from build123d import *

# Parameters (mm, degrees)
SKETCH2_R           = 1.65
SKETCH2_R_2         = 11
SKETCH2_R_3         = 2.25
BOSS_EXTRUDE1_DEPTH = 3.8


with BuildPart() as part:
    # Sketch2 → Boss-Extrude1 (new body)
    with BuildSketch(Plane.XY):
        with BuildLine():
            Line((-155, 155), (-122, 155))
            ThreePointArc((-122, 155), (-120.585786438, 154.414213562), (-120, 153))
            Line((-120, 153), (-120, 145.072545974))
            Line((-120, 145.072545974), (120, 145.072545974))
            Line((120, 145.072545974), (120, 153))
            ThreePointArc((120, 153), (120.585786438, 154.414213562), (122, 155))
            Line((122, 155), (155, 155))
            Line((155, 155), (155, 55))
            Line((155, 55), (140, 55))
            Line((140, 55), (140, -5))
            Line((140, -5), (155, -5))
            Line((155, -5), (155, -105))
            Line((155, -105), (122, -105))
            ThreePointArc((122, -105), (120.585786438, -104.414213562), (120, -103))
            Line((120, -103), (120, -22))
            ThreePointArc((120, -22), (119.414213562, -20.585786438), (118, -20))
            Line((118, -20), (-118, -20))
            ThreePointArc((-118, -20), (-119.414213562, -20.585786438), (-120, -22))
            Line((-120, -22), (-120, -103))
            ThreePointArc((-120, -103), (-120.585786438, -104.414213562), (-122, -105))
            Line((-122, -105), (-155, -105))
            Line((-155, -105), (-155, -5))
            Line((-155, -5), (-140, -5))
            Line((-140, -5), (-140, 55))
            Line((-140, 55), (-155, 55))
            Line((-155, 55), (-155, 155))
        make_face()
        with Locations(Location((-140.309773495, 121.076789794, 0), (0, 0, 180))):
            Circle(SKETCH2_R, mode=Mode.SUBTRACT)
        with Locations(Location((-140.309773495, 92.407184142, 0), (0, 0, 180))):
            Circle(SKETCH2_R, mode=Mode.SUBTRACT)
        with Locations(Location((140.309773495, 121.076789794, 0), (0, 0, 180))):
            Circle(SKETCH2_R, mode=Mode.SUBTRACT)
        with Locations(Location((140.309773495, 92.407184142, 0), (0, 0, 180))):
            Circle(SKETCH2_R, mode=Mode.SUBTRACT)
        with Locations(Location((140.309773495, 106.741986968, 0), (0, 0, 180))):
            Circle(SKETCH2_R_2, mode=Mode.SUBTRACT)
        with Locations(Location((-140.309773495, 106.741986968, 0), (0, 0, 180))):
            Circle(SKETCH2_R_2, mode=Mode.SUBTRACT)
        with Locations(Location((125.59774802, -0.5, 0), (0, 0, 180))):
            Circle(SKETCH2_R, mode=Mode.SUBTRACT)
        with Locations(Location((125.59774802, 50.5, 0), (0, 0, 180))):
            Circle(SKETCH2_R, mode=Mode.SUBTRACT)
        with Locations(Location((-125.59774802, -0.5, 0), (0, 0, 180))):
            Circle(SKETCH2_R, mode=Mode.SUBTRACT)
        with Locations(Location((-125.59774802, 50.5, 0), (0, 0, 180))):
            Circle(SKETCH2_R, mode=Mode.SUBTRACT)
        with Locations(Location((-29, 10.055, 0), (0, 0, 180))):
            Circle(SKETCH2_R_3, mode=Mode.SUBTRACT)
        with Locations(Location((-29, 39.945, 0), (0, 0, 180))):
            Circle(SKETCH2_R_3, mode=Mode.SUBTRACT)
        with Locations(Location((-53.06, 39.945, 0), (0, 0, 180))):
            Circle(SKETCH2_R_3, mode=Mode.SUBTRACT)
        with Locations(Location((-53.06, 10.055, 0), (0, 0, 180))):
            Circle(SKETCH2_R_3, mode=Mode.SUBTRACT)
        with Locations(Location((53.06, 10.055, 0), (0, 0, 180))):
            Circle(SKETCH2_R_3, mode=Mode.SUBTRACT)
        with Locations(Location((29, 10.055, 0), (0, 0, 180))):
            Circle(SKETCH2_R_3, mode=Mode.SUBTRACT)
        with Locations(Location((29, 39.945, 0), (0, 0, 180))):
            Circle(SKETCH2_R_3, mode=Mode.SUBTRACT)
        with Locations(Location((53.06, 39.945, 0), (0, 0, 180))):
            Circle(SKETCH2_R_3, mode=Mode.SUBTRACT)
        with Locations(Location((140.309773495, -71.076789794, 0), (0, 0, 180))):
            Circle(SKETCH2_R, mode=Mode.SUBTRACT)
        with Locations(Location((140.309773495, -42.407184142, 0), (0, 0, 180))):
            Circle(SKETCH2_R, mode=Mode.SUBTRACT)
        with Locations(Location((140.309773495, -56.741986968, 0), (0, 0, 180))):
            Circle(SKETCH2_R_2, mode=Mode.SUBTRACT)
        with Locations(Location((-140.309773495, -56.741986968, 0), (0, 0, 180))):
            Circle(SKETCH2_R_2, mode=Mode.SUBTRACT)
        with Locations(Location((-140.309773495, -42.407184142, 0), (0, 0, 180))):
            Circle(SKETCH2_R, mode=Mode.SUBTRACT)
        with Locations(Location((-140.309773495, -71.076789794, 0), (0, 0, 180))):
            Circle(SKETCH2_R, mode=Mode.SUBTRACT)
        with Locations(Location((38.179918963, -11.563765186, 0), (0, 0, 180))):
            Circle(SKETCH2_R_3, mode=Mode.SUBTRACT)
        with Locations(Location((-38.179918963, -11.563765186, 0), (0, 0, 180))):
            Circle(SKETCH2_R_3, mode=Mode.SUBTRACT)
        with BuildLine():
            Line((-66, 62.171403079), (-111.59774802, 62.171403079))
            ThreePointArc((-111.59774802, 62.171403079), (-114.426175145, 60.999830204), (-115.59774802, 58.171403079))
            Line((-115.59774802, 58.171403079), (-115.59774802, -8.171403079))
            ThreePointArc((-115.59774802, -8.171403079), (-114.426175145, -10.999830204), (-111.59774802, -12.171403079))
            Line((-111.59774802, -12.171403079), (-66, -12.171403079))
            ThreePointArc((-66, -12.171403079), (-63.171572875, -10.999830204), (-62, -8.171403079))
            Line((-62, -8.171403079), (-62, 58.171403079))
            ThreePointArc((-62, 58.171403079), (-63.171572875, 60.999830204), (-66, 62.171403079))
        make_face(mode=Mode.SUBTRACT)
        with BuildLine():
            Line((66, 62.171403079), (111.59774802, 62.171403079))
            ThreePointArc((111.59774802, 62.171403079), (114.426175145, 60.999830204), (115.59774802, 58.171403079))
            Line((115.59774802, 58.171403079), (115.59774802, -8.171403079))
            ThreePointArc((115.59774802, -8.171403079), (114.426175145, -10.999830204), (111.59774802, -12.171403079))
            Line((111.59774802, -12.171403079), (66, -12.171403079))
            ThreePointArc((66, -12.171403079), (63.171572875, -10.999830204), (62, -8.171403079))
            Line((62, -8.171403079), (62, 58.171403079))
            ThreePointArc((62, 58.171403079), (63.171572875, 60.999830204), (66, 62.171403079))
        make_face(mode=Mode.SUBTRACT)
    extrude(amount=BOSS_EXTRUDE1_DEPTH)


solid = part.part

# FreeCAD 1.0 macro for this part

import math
import FreeCAD as App
import Part
import Sketcher

doc = App.newDocument("Part")
body = doc.addObject("PartDesign::Body", "Body")

sketch1 = doc.addObject("Sketcher::SketchObject", "Sketch")
body.addObject(sketch1)
sketch1.AttachmentSupport = (doc.XY_Plane, [""])
sketch1.MapMode = "FlatFace"
sketch1.addGeometry([
    Part.LineSegment(App.Vector(-122, 155, 0), App.Vector(-155, 155, 0)),
    Part.LineSegment(App.Vector(-155, 155, 0), App.Vector(-155, 55, 0)),
    Part.LineSegment(App.Vector(-155, 55, 0), App.Vector(-140, 55, 0)),
    Part.LineSegment(App.Vector(-140, 55, 0), App.Vector(-140, -5, 0)),
    Part.LineSegment(App.Vector(-140, -5, 0), App.Vector(-155, -5, 0)),
    Part.LineSegment(App.Vector(-155, -5, 0), App.Vector(-155, -105, 0)),
    Part.LineSegment(App.Vector(-155, -105, 0), App.Vector(-122, -105, 0)),
    Part.ArcOfCircle(Part.Circle(App.Vector(-122, -103, 0), App.Vector(0, 0, 1), 2), math.radians(-90), math.radians(0)),
    Part.LineSegment(App.Vector(-120, -103, 0), App.Vector(-120, -22, 0)),
    Part.ArcOfCircle(Part.Circle(App.Vector(-118, -22, 0), App.Vector(0, 0, 1), 2), math.radians(90), math.radians(180)),
    Part.LineSegment(App.Vector(-118, -20, 0), App.Vector(118, -20, 0)),
    Part.ArcOfCircle(Part.Circle(App.Vector(118, -22, 0), App.Vector(0, 0, 1), 2), math.radians(0), math.radians(90)),
    Part.LineSegment(App.Vector(120, -22, 0), App.Vector(120, -103, 0)),
    Part.ArcOfCircle(Part.Circle(App.Vector(122, -103, 0), App.Vector(0, 0, 1), 2), math.radians(-180), math.radians(-90)),
    Part.LineSegment(App.Vector(122, -105, 0), App.Vector(155, -105, 0)),
    Part.LineSegment(App.Vector(155, -105, 0), App.Vector(155, -5, 0)),
    Part.LineSegment(App.Vector(155, -5, 0), App.Vector(140, -5, 0)),
    Part.LineSegment(App.Vector(140, -5, 0), App.Vector(140, 55, 0)),
    Part.LineSegment(App.Vector(140, 55, 0), App.Vector(155, 55, 0)),
    Part.LineSegment(App.Vector(155, 55, 0), App.Vector(155, 155, 0)),
    Part.LineSegment(App.Vector(155, 155, 0), App.Vector(122, 155, 0)),
    Part.ArcOfCircle(Part.Circle(App.Vector(122, 153, 0), App.Vector(0, 0, 1), 2), math.radians(90), math.radians(180)),
    Part.LineSegment(App.Vector(120, 153, 0), App.Vector(120, 145.1, 0)),
    Part.LineSegment(App.Vector(120, 145.1, 0), App.Vector(-120, 145.1, 0)),
    Part.LineSegment(App.Vector(-120, 145.1, 0), App.Vector(-120, 153, 0)),
    Part.ArcOfCircle(Part.Circle(App.Vector(-122, 153, 0), App.Vector(0, 0, 1), 2), math.radians(0), math.radians(90)),
    Part.Circle(App.Vector(140.3, -71.1, 0), App.Vector(0, 0, 1), 1.6),
    Part.Circle(App.Vector(140.3, -56.7, 0), App.Vector(0, 0, 1), 11),
    Part.Circle(App.Vector(140.3, -42.4, 0), App.Vector(0, 0, 1), 1.6),
    Part.Circle(App.Vector(125.6, -0.5, 0), App.Vector(0, 0, 1), 1.6),
    Part.Circle(App.Vector(38.2, -11.6, 0), App.Vector(0, 0, 1), 2.2),
    Part.Circle(App.Vector(53.1, 10.1, 0), App.Vector(0, 0, 1), 2.2),
    Part.Circle(App.Vector(29, 10.1, 0), App.Vector(0, 0, 1), 2.2),
    Part.Circle(App.Vector(-140.3, -71.1, 0), App.Vector(0, 0, 1), 1.6),
    Part.Circle(App.Vector(-140.3, -56.7, 0), App.Vector(0, 0, 1), 11),
    Part.Circle(App.Vector(-140.3, -42.4, 0), App.Vector(0, 0, 1), 1.6),
    Part.Circle(App.Vector(-38.2, -11.6, 0), App.Vector(0, 0, 1), 2.2),
    Part.Circle(App.Vector(-29, 10.1, 0), App.Vector(0, 0, 1), 2.2),
    Part.Circle(App.Vector(-53.1, 10.1, 0), App.Vector(0, 0, 1), 2.2),
    Part.Circle(App.Vector(-125.6, -0.5, 0), App.Vector(0, 0, 1), 1.6),
    Part.LineSegment(App.Vector(66, 62.2, 0), App.Vector(111.6, 62.2, 0)),
    Part.ArcOfCircle(Part.Circle(App.Vector(111.6, 58.2, 0), App.Vector(0, 0, 1), 4), math.radians(0), math.radians(90)),
    Part.LineSegment(App.Vector(115.6, 58.2, 0), App.Vector(115.6, -8.2, 0)),
    Part.ArcOfCircle(Part.Circle(App.Vector(111.6, -8.2, 0), App.Vector(0, 0, 1), 4), math.radians(-90), math.radians(0)),
    Part.LineSegment(App.Vector(111.6, -12.2, 0), App.Vector(66, -12.2, 0)),
    Part.ArcOfCircle(Part.Circle(App.Vector(66, -8.2, 0), App.Vector(0, 0, 1), 4), math.radians(180), math.radians(270)),
    Part.LineSegment(App.Vector(62, -8.2, 0), App.Vector(62, 58.2, 0)),
    Part.ArcOfCircle(Part.Circle(App.Vector(66, 58.2, 0), App.Vector(0, 0, 1), 4), math.radians(90), math.radians(180)),
    Part.Circle(App.Vector(125.6, 50.5, 0), App.Vector(0, 0, 1), 1.6),
    Part.Circle(App.Vector(53.1, 39.9, 0), App.Vector(0, 0, 1), 2.2),
    Part.Circle(App.Vector(29, 39.9, 0), App.Vector(0, 0, 1), 2.2),
    Part.Circle(App.Vector(140.3, 92.4, 0), App.Vector(0, 0, 1), 1.6),
    Part.Circle(App.Vector(140.3, 106.7, 0), App.Vector(0, 0, 1), 11),
    Part.Circle(App.Vector(140.3, 121.1, 0), App.Vector(0, 0, 1), 1.6),
    Part.Circle(App.Vector(-29, 39.9, 0), App.Vector(0, 0, 1), 2.2),
    Part.Circle(App.Vector(-53.1, 39.9, 0), App.Vector(0, 0, 1), 2.2),
    Part.ArcOfCircle(Part.Circle(App.Vector(-66, 58.2, 0), App.Vector(0, 0, 1), 4), math.radians(0), math.radians(90)),
    Part.LineSegment(App.Vector(-62, 58.2, 0), App.Vector(-62, -8.2, 0)),
    Part.ArcOfCircle(Part.Circle(App.Vector(-66, -8.2, 0), App.Vector(0, 0, 1), 4), math.radians(-90), math.radians(0)),
    Part.LineSegment(App.Vector(-66, -12.2, 0), App.Vector(-111.6, -12.2, 0)),
    Part.ArcOfCircle(Part.Circle(App.Vector(-111.6, -8.2, 0), App.Vector(0, 0, 1), 4), math.radians(180), math.radians(270)),
    Part.LineSegment(App.Vector(-115.6, -8.2, 0), App.Vector(-115.6, 58.2, 0)),
    Part.ArcOfCircle(Part.Circle(App.Vector(-111.6, 58.2, 0), App.Vector(0, 0, 1), 4), math.radians(90), math.radians(180)),
    Part.LineSegment(App.Vector(-111.6, 62.2, 0), App.Vector(-66, 62.2, 0)),
    Part.Circle(App.Vector(-125.6, 50.5, 0), App.Vector(0, 0, 1), 1.6),
    Part.Circle(App.Vector(-140.3, 92.4, 0), App.Vector(0, 0, 1), 1.6),
    Part.Circle(App.Vector(-140.3, 106.7, 0), App.Vector(0, 0, 1), 11),
    Part.Circle(App.Vector(-140.3, 121.1, 0), App.Vector(0, 0, 1), 1.6),
], False)
sketch1.addConstraint([
    Sketcher.Constraint("Coincident", 0, 2, 1, 1),
    Sketcher.Constraint("Coincident", 1, 2, 2, 1),
    Sketcher.Constraint("Coincident", 2, 2, 3, 1),
    Sketcher.Constraint("Coincident", 3, 2, 4, 1),
    Sketcher.Constraint("Coincident", 4, 2, 5, 1),
    Sketcher.Constraint("Coincident", 5, 2, 6, 1),
    Sketcher.Constraint("Tangent", 6, 2, 7, 1),
    Sketcher.Constraint("Tangent", 7, 2, 8, 1),
    Sketcher.Constraint("Tangent", 8, 2, 9, 2),
    Sketcher.Constraint("Tangent", 9, 1, 10, 1),
    Sketcher.Constraint("Tangent", 10, 2, 11, 2),
    Sketcher.Constraint("Tangent", 11, 1, 12, 1),
    Sketcher.Constraint("Tangent", 12, 2, 13, 1),
    Sketcher.Constraint("Tangent", 13, 2, 14, 1),
    Sketcher.Constraint("Coincident", 14, 2, 15, 1),
    Sketcher.Constraint("Coincident", 15, 2, 16, 1),
    Sketcher.Constraint("Coincident", 16, 2, 17, 1),
    Sketcher.Constraint("Coincident", 17, 2, 18, 1),
    Sketcher.Constraint("Coincident", 18, 2, 19, 1),
    Sketcher.Constraint("Coincident", 19, 2, 20, 1),
    Sketcher.Constraint("Tangent", 20, 2, 21, 1),
    Sketcher.Constraint("Tangent", 21, 2, 22, 1),
    Sketcher.Constraint("Coincident", 22, 2, 23, 1),
    Sketcher.Constraint("Coincident", 23, 2, 24, 1),
    Sketcher.Constraint("Tangent", 24, 2, 25, 1),
    Sketcher.Constraint("Tangent", 25, 2, 0, 1),
    Sketcher.Constraint("Tangent", 40, 2, 41, 2),
    Sketcher.Constraint("Tangent", 41, 1, 42, 1),
    Sketcher.Constraint("Tangent", 42, 2, 43, 2),
    Sketcher.Constraint("Tangent", 43, 1, 44, 1),
    Sketcher.Constraint("Tangent", 44, 2, 45, 2),
    Sketcher.Constraint("Tangent", 45, 1, 46, 1),
    Sketcher.Constraint("Tangent", 46, 2, 47, 2),
    Sketcher.Constraint("Tangent", 47, 1, 40, 1),
    Sketcher.Constraint("Tangent", 56, 1, 57, 1),
    Sketcher.Constraint("Tangent", 57, 2, 58, 2),
    Sketcher.Constraint("Tangent", 58, 1, 59, 1),
    Sketcher.Constraint("Tangent", 59, 2, 60, 2),
    Sketcher.Constraint("Tangent", 60, 1, 61, 1),
    Sketcher.Constraint("Tangent", 61, 2, 62, 2),
    Sketcher.Constraint("Tangent", 62, 1, 63, 1),
    Sketcher.Constraint("Tangent", 63, 2, 56, 2),
    Sketcher.Constraint("Horizontal", 0),
    Sketcher.Constraint("Vertical", 1),
    Sketcher.Constraint("Horizontal", 2),
    Sketcher.Constraint("Vertical", 3),
    Sketcher.Constraint("Horizontal", 4),
    Sketcher.Constraint("Vertical", 5),
    Sketcher.Constraint("Horizontal", 6),
    Sketcher.Constraint("Vertical", 8),
    Sketcher.Constraint("Horizontal", 10),
    Sketcher.Constraint("Vertical", 12),
    Sketcher.Constraint("Horizontal", 14),
    Sketcher.Constraint("Vertical", 15),
    Sketcher.Constraint("Horizontal", 16),
    Sketcher.Constraint("Vertical", 17),
    Sketcher.Constraint("Horizontal", 18),
    Sketcher.Constraint("Vertical", 19),
    Sketcher.Constraint("Horizontal", 20),
    Sketcher.Constraint("Vertical", 22),
    Sketcher.Constraint("Horizontal", 23),
    Sketcher.Constraint("Vertical", 24),
    Sketcher.Constraint("Horizontal", 40),
    Sketcher.Constraint("Vertical", 42),
    Sketcher.Constraint("Horizontal", 44),
    Sketcher.Constraint("Vertical", 46),
    Sketcher.Constraint("Vertical", 57),
    Sketcher.Constraint("Horizontal", 59),
    Sketcher.Constraint("Vertical", 61),
    Sketcher.Constraint("Horizontal", 63),
    Sketcher.Constraint("Equal", 7, 9),
    Sketcher.Constraint("Equal", 9, 11),
    Sketcher.Constraint("Equal", 11, 13),
    Sketcher.Constraint("Equal", 13, 21),
    Sketcher.Constraint("Equal", 21, 25),
    Sketcher.Constraint("Equal", 26, 28),
    Sketcher.Constraint("Equal", 28, 29),
    Sketcher.Constraint("Equal", 30, 31),
    Sketcher.Constraint("Equal", 31, 32),
    Sketcher.Constraint("Equal", 29, 33),
    Sketcher.Constraint("Equal", 27, 34),
    Sketcher.Constraint("Equal", 33, 35),
    Sketcher.Constraint("Equal", 32, 36),
    Sketcher.Constraint("Equal", 36, 37),
    Sketcher.Constraint("Equal", 37, 38),
    Sketcher.Constraint("Equal", 35, 39),
    Sketcher.Constraint("Equal", 41, 43),
    Sketcher.Constraint("Equal", 43, 45),
    Sketcher.Constraint("Equal", 45, 47),
    Sketcher.Constraint("Equal", 39, 48),
    Sketcher.Constraint("Equal", 38, 49),
    Sketcher.Constraint("Equal", 49, 50),
    Sketcher.Constraint("Equal", 48, 51),
    Sketcher.Constraint("Equal", 34, 52),
    Sketcher.Constraint("Equal", 51, 53),
    Sketcher.Constraint("Equal", 50, 54),
    Sketcher.Constraint("Equal", 54, 55),
    Sketcher.Constraint("Equal", 47, 56),
    Sketcher.Constraint("Equal", 56, 58),
    Sketcher.Constraint("Equal", 58, 60),
    Sketcher.Constraint("Equal", 60, 62),
    Sketcher.Constraint("Equal", 53, 64),
    Sketcher.Constraint("Equal", 64, 65),
    Sketcher.Constraint("Equal", 52, 66),
    Sketcher.Constraint("Equal", 65, 67),
    Sketcher.Constraint("Symmetric", 7, 3, 13, 3, -2),
    Sketcher.Constraint("Symmetric", 21, 3, 25, 3, -2),
    Sketcher.Constraint("Symmetric", 26, 3, 33, 3, -2),
    Sketcher.Constraint("Symmetric", 27, 3, 34, 3, -2),
    Sketcher.Constraint("Symmetric", 28, 3, 35, 3, -2),
    Sketcher.Constraint("Symmetric", 30, 3, 36, 3, -2),
    Sketcher.Constraint("Symmetric", 32, 3, 37, 3, -2),
    Sketcher.Constraint("Symmetric", 31, 3, 38, 3, -2),
    Sketcher.Constraint("Symmetric", 29, 3, 39, 3, -2),
    Sketcher.Constraint("Symmetric", 50, 3, 54, 3, -2),
    Sketcher.Constraint("Symmetric", 49, 3, 55, 3, -2),
    Sketcher.Constraint("Symmetric", 47, 3, 56, 3, -2),
    Sketcher.Constraint("Symmetric", 43, 3, 60, 3, -2),
    Sketcher.Constraint("Symmetric", 48, 3, 64, 3, -2),
    Sketcher.Constraint("Symmetric", 51, 3, 65, 3, -2),
    Sketcher.Constraint("Symmetric", 52, 3, 66, 3, -2),
    Sketcher.Constraint("Symmetric", 53, 3, 67, 3, -2),
    Sketcher.Constraint("Symmetric", 4, 2, 15, 2, -2),
    Sketcher.Constraint("Symmetric", 2, 2, 17, 2, -2),
    Sketcher.Constraint("Horizontal", 31, 3, 32, 3),
    Sketcher.Constraint("Horizontal", 49, 3, 50, 3),
    Sketcher.Constraint("Vertical", 13, 3, 21, 3),
    Sketcher.Constraint("Vertical", 26, 3, 27, 3),
    Sketcher.Constraint("Vertical", 27, 3, 28, 3),
    Sketcher.Constraint("Vertical", 29, 3, 48, 3),
    Sketcher.Constraint("Vertical", 31, 3, 49, 3),
    Sketcher.Constraint("Vertical", 32, 3, 50, 3),
    Sketcher.Constraint("Vertical", 28, 3, 51, 3),
    Sketcher.Constraint("Vertical", 51, 3, 52, 3),
    Sketcher.Constraint("Vertical", 52, 3, 53, 3),
    Sketcher.Constraint("Vertical", 1, 2, 4, 2),
    Sketcher.Constraint("Vertical", 15, 2, 18, 2),
    Sketcher.Constraint("Equal", 1, 5),
    Sketcher.Constraint("Diameter", 27, 22.0),
    Sketcher.Constraint("Radius", 7, 2.0),
    Sketcher.Constraint("Radius", 41, 4.0),
    Sketcher.Constraint("Diameter", 26, 3.3),
    Sketcher.Constraint("Diameter", 30, 4.5),
    Sketcher.Constraint("DistanceX", 0, 2, 0, 1, 33.0),
    Sketcher.Constraint("DistanceX", 2, 1, 2, 2, 15.0),
    Sketcher.Constraint("DistanceX", 10, 1, 10, 2, 236.0),
    Sketcher.Constraint("DistanceY", 1, 2, 1, 1, 100.0),
    Sketcher.Constraint("DistanceY", 3, 2, 3, 1, 60.0),
    Sketcher.Constraint("DistanceY", 8, 1, 8, 2, 81.0),
    Sketcher.Constraint("DistanceY", 7, 3, -1, 1, 103.0),
    Sketcher.Constraint("DistanceX", -1, 1, 32, 3, 29.0),
    Sketcher.Constraint("DistanceX", -1, 1, 45, 3, 66.0),
    Sketcher.Constraint("DistanceY", 29, 3, -1, 1, 0.5),
    Sketcher.Constraint("DistanceY", -1, 1, 48, 3, 50.5),
    Sketcher.Constraint("DistanceX", -1, 1, 31, 3, 53.06),
    Sketcher.Constraint("DistanceY", -1, 1, 31, 3, 10.055),
    Sketcher.Constraint("DistanceY", -1, 1, 49, 3, 39.945),
    Sketcher.Constraint("DistanceX", 40, 1, 40, 2, 45.597748),
    Sketcher.Constraint("DistanceY", 22, 2, 22, 1, 7.927454),
    Sketcher.Constraint("DistanceY", 42, 2, 42, 1, 66.342806),
    Sketcher.Constraint("DistanceY", 26, 3, -1, 1, 71.07679),
    Sketcher.Constraint("DistanceX", -1, 1, 29, 3, 125.597748),
    Sketcher.Constraint("DistanceX", -1, 1, 30, 3, 38.179919),
    Sketcher.Constraint("DistanceY", -1, 1, 53, 3, 121.07679),
    Sketcher.Constraint("DistanceX", -1, 1, 26, 3, 140.309773),
    Sketcher.Constraint("DistanceY", 27, 3, -1, 1, 56.741987),
    Sketcher.Constraint("DistanceY", 28, 3, -1, 1, 42.407184),
    Sketcher.Constraint("DistanceY", 30, 3, -1, 1, 11.563765),
    Sketcher.Constraint("DistanceY", -1, 1, 41, 3, 58.171403),
    Sketcher.Constraint("DistanceY", -1, 1, 51, 3, 92.407184),
    Sketcher.Constraint("DistanceY", -1, 1, 52, 3, 106.741987),
])
pad1 = doc.addObject("PartDesign::Pad", "Pad")
body.addObject(pad1)
pad1.Profile = sketch1
pad1.Length = 3.8

doc.recompute()
